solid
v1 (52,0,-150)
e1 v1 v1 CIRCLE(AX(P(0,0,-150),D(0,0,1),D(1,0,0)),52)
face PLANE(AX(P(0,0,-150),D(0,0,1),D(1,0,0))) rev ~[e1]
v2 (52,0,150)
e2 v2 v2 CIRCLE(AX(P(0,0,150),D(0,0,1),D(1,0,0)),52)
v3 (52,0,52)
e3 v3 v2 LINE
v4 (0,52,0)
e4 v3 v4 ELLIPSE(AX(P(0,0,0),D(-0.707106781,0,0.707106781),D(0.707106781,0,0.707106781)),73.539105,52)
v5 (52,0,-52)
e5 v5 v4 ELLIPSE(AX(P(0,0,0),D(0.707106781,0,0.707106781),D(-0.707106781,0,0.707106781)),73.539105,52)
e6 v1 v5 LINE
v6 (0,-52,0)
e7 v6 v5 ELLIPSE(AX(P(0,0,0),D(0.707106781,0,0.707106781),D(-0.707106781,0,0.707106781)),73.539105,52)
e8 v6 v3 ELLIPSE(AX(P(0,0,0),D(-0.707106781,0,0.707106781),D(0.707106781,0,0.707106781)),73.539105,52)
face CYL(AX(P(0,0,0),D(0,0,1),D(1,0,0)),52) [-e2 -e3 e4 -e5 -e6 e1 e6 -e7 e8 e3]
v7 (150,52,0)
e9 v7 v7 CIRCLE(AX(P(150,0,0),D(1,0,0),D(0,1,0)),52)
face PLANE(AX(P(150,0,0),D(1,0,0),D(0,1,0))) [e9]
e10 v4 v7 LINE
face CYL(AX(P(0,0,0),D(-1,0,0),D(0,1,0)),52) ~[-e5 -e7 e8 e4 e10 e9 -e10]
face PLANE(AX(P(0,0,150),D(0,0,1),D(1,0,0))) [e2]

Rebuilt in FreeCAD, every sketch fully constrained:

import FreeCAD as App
import Part
import Sketcher

doc = App.newDocument("Part")
params = doc.addObject("Spreadsheet::Sheet", "Params")
for row, (alias, value) in enumerate([
    ("sketch1_diameter", "104 mm"),
    ("pad1_length", "300 mm"),
    ("sketch2_diameter", "104 mm"),
    ("pad2_length", "150 mm"),
], start=1):
    params.set(f"A{row}", alias)
    params.set(f"B{row}", "=" + value)
    params.setAlias(f"B{row}", alias)

body = doc.addObject("PartDesign::Body", "Body")

# Sketch on XY plane
sketch1 = body.newObject("Sketcher::SketchObject", "Sketch")
sketch1.AttachmentSupport = (doc.getObject("XY_Plane"), [""])
sketch1.MapMode = "FlatFace"
sketch1.addGeometry(Part.Circle(App.Vector(0, 0, 0), App.Vector(0, 0, 1), 52), False)
sketch1.addConstraint(Sketcher.Constraint("Coincident", 0, 3, -1, 1))
sketch1.addConstraint(Sketcher.Constraint("Diameter", 0, 104.0))
sketch1.setExpression("Constraints[1]", "Params.sketch1_diameter")
pad1 = body.newObject("PartDesign::Pad", "Pad")
pad1.Profile = sketch1
pad1.setExpression("Length", "Params.pad1_length")
pad1.Midplane = True

# Sketch on YZ plane
sketch2 = body.newObject("Sketcher::SketchObject", "Sketch001")
sketch2.AttachmentSupport = (doc.getObject("YZ_Plane"), [""])
sketch2.MapMode = "FlatFace"
sketch2.addGeometry(Part.Circle(App.Vector(0, 0, 0), App.Vector(0, 0, 1), 52), False)
sketch2.addConstraint(Sketcher.Constraint("Coincident", 0, 3, -1, 1))
sketch2.addConstraint(Sketcher.Constraint("Diameter", 0, 104.0))
sketch2.setExpression("Constraints[1]", "Params.sketch2_diameter")
pad2 = body.newObject("PartDesign::Pad", "Pad001")
pad2.Profile = sketch2
pad2.setExpression("Length", "Params.pad2_length")

doc.recompute()
